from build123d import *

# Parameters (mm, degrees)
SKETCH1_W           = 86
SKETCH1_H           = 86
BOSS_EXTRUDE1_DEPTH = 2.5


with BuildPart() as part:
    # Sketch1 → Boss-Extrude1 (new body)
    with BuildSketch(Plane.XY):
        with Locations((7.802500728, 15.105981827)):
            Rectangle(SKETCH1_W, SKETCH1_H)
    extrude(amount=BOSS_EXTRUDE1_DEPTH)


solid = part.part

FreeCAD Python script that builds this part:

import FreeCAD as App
import Part
import Sketcher

V = App.Vector
Q = App.Units.Quantity

doc = App.newDocument("Part")
params = doc.addObject("Spreadsheet::Sheet", "Params")
for row, (alias, value) in enumerate([
    ("sketch1_width", "86 mm"),
    ("pad1_length", "2.5 mm"),
], start=1):
    params.set(f"A{row}", alias)
    params.set(f"B{row}", "=" + value)
    params.setAlias(f"B{row}", alias)

body = doc.addObject("PartDesign::Body", "Body")

# Sketch on XY plane
sketch1 = doc.addObject("Sketcher::SketchObject", "Sketch")
body.addObject(sketch1)
sketch1.AttachmentSupport = (doc.XY_Plane, [""])
sketch1.MapMode = "FlatFace"
sketch1.addGeometry(Part.LineSegment(V(-35, 58, 0), V(-35, -28, 0)), False)
sketch1.addGeometry(Part.LineSegment(V(-35, -28, 0), V(51, -28, 0)), False)
sketch1.addGeometry(Part.LineSegment(V(51, -28, 0), V(51, 58, 0)), False)
sketch1.addGeometry(Part.LineSegment(V(51, 58, 0), V(-35, 58, 0)), False)
sketch1.addConstraint(Sketcher.Constraint("Coincident", 0, 2, 1, 1))
sketch1.addConstraint(Sketcher.Constraint("Coincident", 1, 2, 2, 1))
sketch1.addConstraint(Sketcher.Constraint("Coincident", 2, 2, 3, 1))
sketch1.addConstraint(Sketcher.Constraint("Coincident", 3, 2, 0, 1))
sketch1.addConstraint(Sketcher.Constraint("Vertical", 0))
sketch1.addConstraint(Sketcher.Constraint("Horizontal", 1))
sketch1.addConstraint(Sketcher.Constraint("Vertical", 2))
sketch1.addConstraint(Sketcher.Constraint("Horizontal", 3))
sketch1.addConstraint(Sketcher.Constraint("Equal", 3, 0))
sketch1.addConstraint(Sketcher.Constraint("DistanceX", 1, 1, 1, 2, Q("86 mm")))
sketch1.addConstraint(Sketcher.Constraint("DistanceX", 0, 2, -1, 1, Q("35.197499 mm")))
sketch1.addConstraint(Sketcher.Constraint("DistanceY", 0, 2, -1, 1, Q("27.894018 mm")))
sketch1.setExpression("Constraints[9]", "Params.sketch1_width")
pad1 = doc.addObject("PartDesign::Pad", "Pad")
body.addObject(pad1)
pad1.Profile = sketch1
pad1.setExpression("Length", "Params.pad1_length")

doc.recompute()
